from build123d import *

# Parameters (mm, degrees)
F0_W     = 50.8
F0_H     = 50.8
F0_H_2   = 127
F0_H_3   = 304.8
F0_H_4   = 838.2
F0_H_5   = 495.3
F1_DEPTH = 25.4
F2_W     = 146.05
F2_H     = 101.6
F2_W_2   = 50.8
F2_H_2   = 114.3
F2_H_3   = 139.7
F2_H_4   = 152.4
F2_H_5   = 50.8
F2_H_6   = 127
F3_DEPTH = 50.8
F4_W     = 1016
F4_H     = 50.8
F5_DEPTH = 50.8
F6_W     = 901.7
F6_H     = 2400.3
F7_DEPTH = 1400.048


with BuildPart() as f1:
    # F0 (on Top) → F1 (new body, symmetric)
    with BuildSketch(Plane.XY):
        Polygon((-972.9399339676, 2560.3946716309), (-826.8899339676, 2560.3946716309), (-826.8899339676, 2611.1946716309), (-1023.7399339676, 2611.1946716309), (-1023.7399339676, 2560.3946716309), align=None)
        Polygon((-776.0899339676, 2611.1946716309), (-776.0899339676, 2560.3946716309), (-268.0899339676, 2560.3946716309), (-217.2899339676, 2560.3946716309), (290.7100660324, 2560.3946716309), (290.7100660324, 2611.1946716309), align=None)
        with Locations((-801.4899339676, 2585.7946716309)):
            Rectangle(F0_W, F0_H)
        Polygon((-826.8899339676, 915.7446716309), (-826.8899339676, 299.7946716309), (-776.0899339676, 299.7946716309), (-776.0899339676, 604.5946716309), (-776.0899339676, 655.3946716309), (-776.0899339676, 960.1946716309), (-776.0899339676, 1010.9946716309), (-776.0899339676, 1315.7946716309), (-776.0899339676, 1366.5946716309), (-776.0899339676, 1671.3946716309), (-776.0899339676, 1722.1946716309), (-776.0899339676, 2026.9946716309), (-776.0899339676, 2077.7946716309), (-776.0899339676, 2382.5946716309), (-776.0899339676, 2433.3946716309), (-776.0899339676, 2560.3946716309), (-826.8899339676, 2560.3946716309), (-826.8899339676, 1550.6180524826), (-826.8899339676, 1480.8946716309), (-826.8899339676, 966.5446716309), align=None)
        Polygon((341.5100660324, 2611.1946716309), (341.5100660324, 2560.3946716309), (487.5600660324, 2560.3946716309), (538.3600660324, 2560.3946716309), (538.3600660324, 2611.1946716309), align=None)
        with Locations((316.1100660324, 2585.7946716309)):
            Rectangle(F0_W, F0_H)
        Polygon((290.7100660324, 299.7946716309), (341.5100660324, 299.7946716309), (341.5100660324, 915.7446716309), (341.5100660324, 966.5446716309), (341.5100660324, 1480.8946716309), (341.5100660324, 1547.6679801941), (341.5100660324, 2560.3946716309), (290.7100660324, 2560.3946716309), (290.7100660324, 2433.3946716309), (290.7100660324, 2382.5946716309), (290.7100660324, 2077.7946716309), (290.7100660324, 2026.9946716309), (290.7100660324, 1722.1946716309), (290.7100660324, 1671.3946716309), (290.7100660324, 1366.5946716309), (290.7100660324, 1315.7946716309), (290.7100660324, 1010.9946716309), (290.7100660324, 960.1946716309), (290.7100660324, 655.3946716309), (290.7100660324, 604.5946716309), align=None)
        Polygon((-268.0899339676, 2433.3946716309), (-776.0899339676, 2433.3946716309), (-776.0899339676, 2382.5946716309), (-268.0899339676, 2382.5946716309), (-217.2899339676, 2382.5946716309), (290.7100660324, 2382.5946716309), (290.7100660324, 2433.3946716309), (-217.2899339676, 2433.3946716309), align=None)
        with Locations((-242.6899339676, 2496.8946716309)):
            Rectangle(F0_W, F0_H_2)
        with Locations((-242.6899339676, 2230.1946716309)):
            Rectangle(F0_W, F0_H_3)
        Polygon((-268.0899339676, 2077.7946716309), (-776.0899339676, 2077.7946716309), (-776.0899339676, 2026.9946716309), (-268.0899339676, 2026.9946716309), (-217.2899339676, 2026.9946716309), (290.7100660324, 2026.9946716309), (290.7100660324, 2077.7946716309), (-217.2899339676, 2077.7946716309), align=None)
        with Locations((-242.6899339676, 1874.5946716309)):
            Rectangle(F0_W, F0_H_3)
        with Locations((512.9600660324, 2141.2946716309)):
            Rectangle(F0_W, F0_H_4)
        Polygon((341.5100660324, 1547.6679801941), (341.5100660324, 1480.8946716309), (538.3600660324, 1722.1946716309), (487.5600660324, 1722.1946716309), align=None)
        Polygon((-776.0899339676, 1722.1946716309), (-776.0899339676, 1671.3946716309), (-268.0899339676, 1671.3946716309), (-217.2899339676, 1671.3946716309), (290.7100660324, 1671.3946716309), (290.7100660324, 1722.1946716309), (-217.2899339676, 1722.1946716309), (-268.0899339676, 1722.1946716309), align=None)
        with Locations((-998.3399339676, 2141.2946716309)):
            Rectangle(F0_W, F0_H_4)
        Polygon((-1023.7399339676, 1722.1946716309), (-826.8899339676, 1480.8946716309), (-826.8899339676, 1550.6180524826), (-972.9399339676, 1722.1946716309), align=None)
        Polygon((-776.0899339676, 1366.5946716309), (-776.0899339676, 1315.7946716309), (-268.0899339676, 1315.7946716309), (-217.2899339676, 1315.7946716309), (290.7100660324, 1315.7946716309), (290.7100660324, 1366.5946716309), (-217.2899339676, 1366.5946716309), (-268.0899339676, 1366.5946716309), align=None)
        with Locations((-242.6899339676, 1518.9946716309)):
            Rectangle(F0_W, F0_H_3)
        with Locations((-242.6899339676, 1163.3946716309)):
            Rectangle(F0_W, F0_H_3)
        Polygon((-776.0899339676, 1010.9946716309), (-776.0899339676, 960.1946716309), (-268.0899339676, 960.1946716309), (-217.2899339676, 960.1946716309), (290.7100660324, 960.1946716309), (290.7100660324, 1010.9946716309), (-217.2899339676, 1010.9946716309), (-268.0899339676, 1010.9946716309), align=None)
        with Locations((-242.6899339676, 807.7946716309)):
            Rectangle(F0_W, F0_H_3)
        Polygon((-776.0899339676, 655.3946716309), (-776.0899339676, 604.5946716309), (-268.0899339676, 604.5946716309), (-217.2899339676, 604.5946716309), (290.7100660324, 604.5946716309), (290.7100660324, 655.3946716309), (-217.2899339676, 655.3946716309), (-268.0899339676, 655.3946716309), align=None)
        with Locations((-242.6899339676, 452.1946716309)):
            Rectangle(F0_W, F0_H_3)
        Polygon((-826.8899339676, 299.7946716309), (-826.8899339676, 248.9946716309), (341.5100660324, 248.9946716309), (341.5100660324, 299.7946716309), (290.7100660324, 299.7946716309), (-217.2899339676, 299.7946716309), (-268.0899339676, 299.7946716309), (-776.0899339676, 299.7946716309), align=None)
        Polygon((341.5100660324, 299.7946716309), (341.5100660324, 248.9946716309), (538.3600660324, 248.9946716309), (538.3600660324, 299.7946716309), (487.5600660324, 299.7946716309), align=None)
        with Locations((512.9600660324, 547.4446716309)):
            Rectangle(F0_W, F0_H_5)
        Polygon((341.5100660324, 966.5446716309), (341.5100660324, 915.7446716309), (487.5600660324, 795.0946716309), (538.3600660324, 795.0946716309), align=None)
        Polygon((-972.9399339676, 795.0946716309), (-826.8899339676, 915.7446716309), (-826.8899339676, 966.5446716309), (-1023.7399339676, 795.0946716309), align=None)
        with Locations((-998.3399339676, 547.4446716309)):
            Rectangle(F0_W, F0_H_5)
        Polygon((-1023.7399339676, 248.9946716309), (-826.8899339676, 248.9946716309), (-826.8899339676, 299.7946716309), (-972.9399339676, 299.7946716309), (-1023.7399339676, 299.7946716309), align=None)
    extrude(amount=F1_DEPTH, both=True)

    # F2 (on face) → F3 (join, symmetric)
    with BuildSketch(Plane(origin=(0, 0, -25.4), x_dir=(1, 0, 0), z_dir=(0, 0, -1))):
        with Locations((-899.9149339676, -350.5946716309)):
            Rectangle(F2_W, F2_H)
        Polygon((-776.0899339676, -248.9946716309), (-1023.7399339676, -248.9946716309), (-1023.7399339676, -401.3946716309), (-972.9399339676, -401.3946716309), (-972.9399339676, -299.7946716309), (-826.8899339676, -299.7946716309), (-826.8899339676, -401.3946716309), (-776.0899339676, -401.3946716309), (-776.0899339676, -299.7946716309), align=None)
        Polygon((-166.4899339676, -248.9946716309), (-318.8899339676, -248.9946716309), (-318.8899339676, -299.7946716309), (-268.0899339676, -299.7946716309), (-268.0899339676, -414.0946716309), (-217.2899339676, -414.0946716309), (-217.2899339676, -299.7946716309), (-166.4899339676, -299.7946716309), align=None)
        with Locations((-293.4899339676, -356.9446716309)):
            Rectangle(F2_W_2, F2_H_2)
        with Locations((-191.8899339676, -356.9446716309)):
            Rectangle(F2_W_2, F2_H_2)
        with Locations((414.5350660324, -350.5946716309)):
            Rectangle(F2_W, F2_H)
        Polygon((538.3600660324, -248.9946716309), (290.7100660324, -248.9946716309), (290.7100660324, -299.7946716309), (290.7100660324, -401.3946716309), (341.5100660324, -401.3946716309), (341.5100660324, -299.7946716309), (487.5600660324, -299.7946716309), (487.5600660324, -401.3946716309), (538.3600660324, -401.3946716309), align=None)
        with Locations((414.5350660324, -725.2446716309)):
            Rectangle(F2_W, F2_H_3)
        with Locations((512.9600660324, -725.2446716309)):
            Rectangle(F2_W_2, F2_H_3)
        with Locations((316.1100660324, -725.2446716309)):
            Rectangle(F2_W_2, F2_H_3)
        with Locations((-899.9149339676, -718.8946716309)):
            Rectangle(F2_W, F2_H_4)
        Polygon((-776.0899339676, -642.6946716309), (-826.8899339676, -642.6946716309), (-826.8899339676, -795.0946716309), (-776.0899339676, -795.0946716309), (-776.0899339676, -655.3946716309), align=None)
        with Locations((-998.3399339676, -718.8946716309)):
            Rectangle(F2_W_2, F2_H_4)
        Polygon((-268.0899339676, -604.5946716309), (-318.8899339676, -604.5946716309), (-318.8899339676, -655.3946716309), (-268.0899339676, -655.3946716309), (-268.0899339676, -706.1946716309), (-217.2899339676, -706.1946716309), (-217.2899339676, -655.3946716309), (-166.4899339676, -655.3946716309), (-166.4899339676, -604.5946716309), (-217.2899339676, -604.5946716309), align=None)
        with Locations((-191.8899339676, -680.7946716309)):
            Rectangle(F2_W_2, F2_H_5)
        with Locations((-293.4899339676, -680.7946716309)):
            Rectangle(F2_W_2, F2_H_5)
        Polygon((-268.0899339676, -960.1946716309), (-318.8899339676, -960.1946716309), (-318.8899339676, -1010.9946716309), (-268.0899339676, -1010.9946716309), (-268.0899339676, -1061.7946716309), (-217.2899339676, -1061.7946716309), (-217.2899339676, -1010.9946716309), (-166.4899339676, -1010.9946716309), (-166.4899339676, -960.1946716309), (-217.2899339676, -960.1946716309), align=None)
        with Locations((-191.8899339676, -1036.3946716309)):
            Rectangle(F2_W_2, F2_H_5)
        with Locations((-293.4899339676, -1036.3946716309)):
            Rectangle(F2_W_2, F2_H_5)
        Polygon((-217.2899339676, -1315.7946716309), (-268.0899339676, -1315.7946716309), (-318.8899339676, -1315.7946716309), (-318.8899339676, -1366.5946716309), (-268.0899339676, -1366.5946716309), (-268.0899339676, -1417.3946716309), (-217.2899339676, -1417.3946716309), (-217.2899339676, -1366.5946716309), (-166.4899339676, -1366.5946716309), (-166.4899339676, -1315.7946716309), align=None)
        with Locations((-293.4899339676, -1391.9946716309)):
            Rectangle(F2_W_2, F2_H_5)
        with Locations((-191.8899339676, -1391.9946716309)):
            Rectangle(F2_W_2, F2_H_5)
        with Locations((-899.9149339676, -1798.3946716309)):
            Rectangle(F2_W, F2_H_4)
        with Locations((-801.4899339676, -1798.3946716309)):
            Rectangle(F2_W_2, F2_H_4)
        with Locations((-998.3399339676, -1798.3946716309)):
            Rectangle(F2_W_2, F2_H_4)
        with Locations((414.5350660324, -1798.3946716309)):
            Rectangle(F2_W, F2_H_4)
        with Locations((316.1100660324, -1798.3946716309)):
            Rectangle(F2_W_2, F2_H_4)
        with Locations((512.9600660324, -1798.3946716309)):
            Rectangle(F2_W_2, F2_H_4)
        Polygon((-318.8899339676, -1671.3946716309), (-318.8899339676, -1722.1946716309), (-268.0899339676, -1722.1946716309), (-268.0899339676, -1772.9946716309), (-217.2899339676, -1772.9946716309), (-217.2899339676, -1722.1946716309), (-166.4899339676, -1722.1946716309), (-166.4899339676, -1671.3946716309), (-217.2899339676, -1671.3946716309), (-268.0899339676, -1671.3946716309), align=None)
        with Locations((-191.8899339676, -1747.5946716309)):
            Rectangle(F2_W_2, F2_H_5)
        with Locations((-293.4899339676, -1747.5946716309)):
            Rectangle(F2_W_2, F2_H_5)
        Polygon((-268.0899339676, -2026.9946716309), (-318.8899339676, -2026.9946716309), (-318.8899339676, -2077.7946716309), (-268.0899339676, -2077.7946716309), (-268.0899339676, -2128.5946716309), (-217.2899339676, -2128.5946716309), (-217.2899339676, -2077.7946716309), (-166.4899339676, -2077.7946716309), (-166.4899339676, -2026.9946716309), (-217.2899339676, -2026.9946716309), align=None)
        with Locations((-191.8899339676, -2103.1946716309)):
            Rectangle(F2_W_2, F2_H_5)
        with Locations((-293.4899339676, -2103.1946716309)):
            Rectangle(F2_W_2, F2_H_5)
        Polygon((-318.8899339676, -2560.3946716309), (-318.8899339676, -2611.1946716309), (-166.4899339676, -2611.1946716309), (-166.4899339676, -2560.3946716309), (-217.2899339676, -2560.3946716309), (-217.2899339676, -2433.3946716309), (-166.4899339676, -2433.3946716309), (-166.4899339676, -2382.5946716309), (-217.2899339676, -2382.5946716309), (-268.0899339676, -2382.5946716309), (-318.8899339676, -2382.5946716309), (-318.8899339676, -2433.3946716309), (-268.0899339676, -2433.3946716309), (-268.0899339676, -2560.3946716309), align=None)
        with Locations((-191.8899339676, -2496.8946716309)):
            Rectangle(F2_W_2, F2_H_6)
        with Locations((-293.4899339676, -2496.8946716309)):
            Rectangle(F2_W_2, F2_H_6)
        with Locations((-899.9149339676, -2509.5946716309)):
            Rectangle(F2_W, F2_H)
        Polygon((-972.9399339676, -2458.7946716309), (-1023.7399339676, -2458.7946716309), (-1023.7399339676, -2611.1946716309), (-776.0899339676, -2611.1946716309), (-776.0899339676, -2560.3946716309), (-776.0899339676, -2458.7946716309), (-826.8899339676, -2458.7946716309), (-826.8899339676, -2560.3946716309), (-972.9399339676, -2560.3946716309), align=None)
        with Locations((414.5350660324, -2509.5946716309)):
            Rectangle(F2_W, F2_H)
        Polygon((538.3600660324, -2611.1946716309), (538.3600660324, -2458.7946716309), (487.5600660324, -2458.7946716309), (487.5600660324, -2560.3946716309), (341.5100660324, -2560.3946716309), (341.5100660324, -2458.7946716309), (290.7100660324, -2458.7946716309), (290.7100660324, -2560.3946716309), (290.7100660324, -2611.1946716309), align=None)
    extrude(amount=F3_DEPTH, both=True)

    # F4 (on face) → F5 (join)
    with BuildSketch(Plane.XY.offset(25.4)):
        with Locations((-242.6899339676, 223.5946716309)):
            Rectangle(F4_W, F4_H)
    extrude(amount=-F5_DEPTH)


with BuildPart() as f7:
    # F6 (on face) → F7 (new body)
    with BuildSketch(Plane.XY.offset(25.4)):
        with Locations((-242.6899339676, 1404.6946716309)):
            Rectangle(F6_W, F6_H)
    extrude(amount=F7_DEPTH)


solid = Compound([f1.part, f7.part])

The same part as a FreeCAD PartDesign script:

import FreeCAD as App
import Part
import Sketcher
from FreeCAD import Vector
Q = App.Units.Quantity

doc = App.newDocument("Part")
body = doc.addObject("PartDesign::Body", "Body")

# Sketch on XY plane
sketch1 = body.newObject("Sketcher::SketchObject", "Sketch")
sketch1.AttachmentSupport = (doc.getObject("XY_Plane"), [""])
sketch1.MapMode = "FlatFace"
sketch1.addGeometry([
    Part.LineSegment(Vector(-1024, 2611, 0), Vector(-1024, 1722, 0)),  # 0
    Part.LineSegment(Vector(-1024, 1722, 0), Vector(-827, 1481, 0)),  # 1
    Part.LineSegment(Vector(-827, 1481, 0), Vector(-827, 967, 0)),  # 2
    Part.LineSegment(Vector(-827, 967, 0), Vector(-1024, 795, 0)),  # 3
    Part.LineSegment(Vector(-1024, 795, 0), Vector(-1024, 249, 0)),  # 4
    Part.LineSegment(Vector(-1024, 249, 0), Vector(538, 249, 0)),  # 5
    Part.LineSegment(Vector(538, 249, 0), Vector(538, 795, 0)),  # 6
    Part.LineSegment(Vector(538, 795, 0), Vector(342, 967, 0)),  # 7
    Part.LineSegment(Vector(342, 967, 0), Vector(342, 1481, 0)),  # 8
    Part.LineSegment(Vector(342, 1481, 0), Vector(538, 1722, 0)),  # 9
    Part.LineSegment(Vector(538, 1722, 0), Vector(538, 2611, 0)),  # 10
    Part.LineSegment(Vector(538, 2611, 0), Vector(-1024, 2611, 0)),  # 11
    Part.LineSegment(Vector(-973, 300, 0), Vector(-973, 795, 0)),  # 12
    Part.LineSegment(Vector(-973, 795, 0), Vector(-827, 916, 0)),  # 13
    Part.LineSegment(Vector(-827, 916, 0), Vector(-827, 300, 0)),  # 14
    Part.LineSegment(Vector(-827, 300, 0), Vector(-973, 300, 0)),  # 15
    Part.LineSegment(Vector(488, 795, 0), Vector(488, 300, 0)),  # 16
    Part.LineSegment(Vector(488, 300, 0), Vector(342, 300, 0)),  # 17
    Part.LineSegment(Vector(342, 300, 0), Vector(342, 916, 0)),  # 18
    Part.LineSegment(Vector(342, 916, 0), Vector(488, 795, 0)),  # 19
    Part.LineSegment(Vector(-776, 300, 0), Vector(-776, 605, 0)),  # 20
    Part.LineSegment(Vector(-776, 605, 0), Vector(-268, 605, 0)),  # 21
    Part.LineSegment(Vector(-268, 605, 0), Vector(-268, 300, 0)),  # 22
    Part.LineSegment(Vector(-268, 300, 0), Vector(-776, 300, 0)),  # 23
    Part.LineSegment(Vector(-217, 300, 0), Vector(-217, 605, 0)),  # 24
    Part.LineSegment(Vector(-217, 605, 0), Vector(291, 605, 0)),  # 25
    Part.LineSegment(Vector(291, 605, 0), Vector(291, 300, 0)),  # 26
    Part.LineSegment(Vector(291, 300, 0), Vector(-217, 300, 0)),  # 27
    Part.LineSegment(Vector(-776, 655, 0), Vector(-776, 960, 0)),  # 28
    Part.LineSegment(Vector(-776, 960, 0), Vector(-268, 960, 0)),  # 29
    Part.LineSegment(Vector(-268, 960, 0), Vector(-268, 655, 0)),  # 30
    Part.LineSegment(Vector(-268, 655, 0), Vector(-776, 655, 0)),  # 31
    Part.LineSegment(Vector(-217, 655, 0), Vector(-217, 960, 0)),  # 32
    Part.LineSegment(Vector(-217, 960, 0), Vector(291, 960, 0)),  # 33
    Part.LineSegment(Vector(291, 960, 0), Vector(291, 655, 0)),  # 34
    Part.LineSegment(Vector(291, 655, 0), Vector(-217, 655, 0)),  # 35
    Part.LineSegment(Vector(-776, 1011, 0), Vector(-776, 1316, 0)),  # 36
    Part.LineSegment(Vector(-776, 1316, 0), Vector(-268, 1316, 0)),  # 37
    Part.LineSegment(Vector(-268, 1316, 0), Vector(-268, 1011, 0)),  # 38
    Part.LineSegment(Vector(-268, 1011, 0), Vector(-776, 1011, 0)),  # 39
    Part.LineSegment(Vector(-217, 1011, 0), Vector(-217, 1316, 0)),  # 40
    Part.LineSegment(Vector(-217, 1316, 0), Vector(291, 1316, 0)),  # 41
    Part.LineSegment(Vector(291, 1316, 0), Vector(291, 1011, 0)),  # 42
    Part.LineSegment(Vector(291, 1011, 0), Vector(-217, 1011, 0)),  # 43
    Part.LineSegment(Vector(-776, 1367, 0), Vector(-776, 1671, 0)),  # 44
    Part.LineSegment(Vector(-776, 1671, 0), Vector(-268, 1671, 0)),  # 45
    Part.LineSegment(Vector(-268, 1671, 0), Vector(-268, 1367, 0)),  # 46
    Part.LineSegment(Vector(-268, 1367, 0), Vector(-776, 1367, 0)),  # 47
    Part.LineSegment(Vector(-217, 1671, 0), Vector(291, 1671, 0)),  # 48
    Part.LineSegment(Vector(291, 1671, 0), Vector(291, 1367, 0)),  # 49
    Part.LineSegment(Vector(291, 1367, 0), Vector(-217, 1367, 0)),  # 50
    Part.LineSegment(Vector(-217, 1367, 0), Vector(-217, 1671, 0)),  # 51
    Part.LineSegment(Vector(-973, 1722, 0), Vector(-973, 2560, 0)),  # 52
    Part.LineSegment(Vector(-973, 2560, 0), Vector(-827, 2560, 0)),  # 53
    Part.LineSegment(Vector(-827, 2560, 0), Vector(-827, 1551, 0)),  # 54
    Part.LineSegment(Vector(-827, 1551, 0), Vector(-973, 1722, 0)),  # 55
    Part.LineSegment(Vector(-776, 1722, 0), Vector(-776, 2027, 0)),  # 56
    Part.LineSegment(Vector(-776, 2027, 0), Vector(-268, 2027, 0)),  # 57
    Part.LineSegment(Vector(-268, 2027, 0), Vector(-268, 1722, 0)),  # 58
    Part.LineSegment(Vector(-268, 1722, 0), Vector(-776, 1722, 0)),  # 59
    Part.LineSegment(Vector(-217, 1722, 0), Vector(-217, 2027, 0)),  # 60
    Part.LineSegment(Vector(-217, 2027, 0), Vector(291, 2027, 0)),  # 61
    Part.LineSegment(Vector(291, 2027, 0), Vector(291, 1722, 0)),  # 62
    Part.LineSegment(Vector(291, 1722, 0), Vector(-217, 1722, 0)),  # 63
    Part.LineSegment(Vector(342, 1548, 0), Vector(342, 2560, 0)),  # 64
    Part.LineSegment(Vector(342, 2560, 0), Vector(488, 2560, 0)),  # 65
    Part.LineSegment(Vector(488, 2560, 0), Vector(488, 1722, 0)),  # 66
    Part.LineSegment(Vector(488, 1722, 0), Vector(342, 1548, 0)),  # 67
    Part.LineSegment(Vector(-776, 2078, 0), Vector(-776, 2383, 0)),  # 68
    Part.LineSegment(Vector(-776, 2383, 0), Vector(-268, 2383, 0)),  # 69
    Part.LineSegment(Vector(-268, 2383, 0), Vector(-268, 2078, 0)),  # 70
    Part.LineSegment(Vector(-268, 2078, 0), Vector(-776, 2078, 0)),  # 71
    Part.LineSegment(Vector(-217, 2078, 0), Vector(-217, 2383, 0)),  # 72
    Part.LineSegment(Vector(-217, 2383, 0), Vector(291, 2383, 0)),  # 73
    Part.LineSegment(Vector(291, 2383, 0), Vector(291, 2078, 0)),  # 74
    Part.LineSegment(Vector(291, 2078, 0), Vector(-217, 2078, 0)),  # 75
    Part.LineSegment(Vector(-776, 2433, 0), Vector(-776, 2560, 0)),  # 76
    Part.LineSegment(Vector(-776, 2560, 0), Vector(-268, 2560, 0)),  # 77
    Part.LineSegment(Vector(-268, 2560, 0), Vector(-268, 2433, 0)),  # 78
    Part.LineSegment(Vector(-268, 2433, 0), Vector(-776, 2433, 0)),  # 79
    Part.LineSegment(Vector(-217, 2560, 0), Vector(291, 2560, 0)),  # 80
    Part.LineSegment(Vector(291, 2560, 0), Vector(291, 2433, 0)),  # 81
    Part.LineSegment(Vector(291, 2433, 0), Vector(-217, 2433, 0)),  # 82
    Part.LineSegment(Vector(-217, 2433, 0), Vector(-217, 2560, 0)),  # 83
], False)
sketch1.addConstraint([
    Sketcher.Constraint("Coincident", 0, 2, 1, 1),
    Sketcher.Constraint("Coincident", 1, 2, 2, 1),
    Sketcher.Constraint("Coincident", 2, 2, 3, 1),
    Sketcher.Constraint("Coincident", 3, 2, 4, 1),
    Sketcher.Constraint("Coincident", 4, 2, 5, 1),
    Sketcher.Constraint("Coincident", 5, 2, 6, 1),
    Sketcher.Constraint("Coincident", 6, 2, 7, 1),
    Sketcher.Constraint("Coincident", 7, 2, 8, 1),
    Sketcher.Constraint("Coincident", 8, 2, 9, 1),
    Sketcher.Constraint("Coincident", 9, 2, 10, 1),
    Sketcher.Constraint("Coincident", 10, 2, 11, 1),
    Sketcher.Constraint("Coincident", 11, 2, 0, 1),
    Sketcher.Constraint("Coincident", 12, 2, 13, 1),
    Sketcher.Constraint("Coincident", 13, 2, 14, 1),
    Sketcher.Constraint("Coincident", 14, 2, 15, 1),
    Sketcher.Constraint("Coincident", 15, 2, 12, 1),
    Sketcher.Constraint("Coincident", 16, 2, 17, 1),
    Sketcher.Constraint("Coincident", 17, 2, 18, 1),
    Sketcher.Constraint("Coincident", 18, 2, 19, 1),
    Sketcher.Constraint("Coincident", 19, 2, 16, 1),
    Sketcher.Constraint("Coincident", 20, 2, 21, 1),
    Sketcher.Constraint("Coincident", 21, 2, 22, 1),
    Sketcher.Constraint("Coincident", 22, 2, 23, 1),
    Sketcher.Constraint("Coincident", 23, 2, 20, 1),
    Sketcher.Constraint("Coincident", 24, 2, 25, 1),
    Sketcher.Constraint("Coincident", 25, 2, 26, 1),
    Sketcher.Constraint("Coincident", 26, 2, 27, 1),
    Sketcher.Constraint("Coincident", 27, 2, 24, 1),
    Sketcher.Constraint("Coincident", 28, 2, 29, 1),
    Sketcher.Constraint("Coincident", 29, 2, 30, 1),
    Sketcher.Constraint("Coincident", 30, 2, 31, 1),
    Sketcher.Constraint("Coincident", 31, 2, 28, 1),
    Sketcher.Constraint("Coincident", 32, 2, 33, 1),
    Sketcher.Constraint("Coincident", 33, 2, 34, 1),
    Sketcher.Constraint("Coincident", 34, 2, 35, 1),
    Sketcher.Constraint("Coincident", 35, 2, 32, 1),
    Sketcher.Constraint("Coincident", 36, 2, 37, 1),
    Sketcher.Constraint("Coincident", 37, 2, 38, 1),
    Sketcher.Constraint("Coincident", 38, 2, 39, 1),
    Sketcher.Constraint("Coincident", 39, 2, 36, 1),
    Sketcher.Constraint("Coincident", 40, 2, 41, 1),
    Sketcher.Constraint("Coincident", 41, 2, 42, 1),
    Sketcher.Constraint("Coincident", 42, 2, 43, 1),
    Sketcher.Constraint("Coincident", 43, 2, 40, 1),
    Sketcher.Constraint("Coincident", 44, 2, 45, 1),
    Sketcher.Constraint("Coincident", 45, 2, 46, 1),
    Sketcher.Constraint("Coincident", 46, 2, 47, 1),
    Sketcher.Constraint("Coincident", 47, 2, 44, 1),
    Sketcher.Constraint("Coincident", 48, 2, 49, 1),
    Sketcher.Constraint("Coincident", 49, 2, 50, 1),
    Sketcher.Constraint("Coincident", 50, 2, 51, 1),
    Sketcher.Constraint("Coincident", 51, 2, 48, 1),
    Sketcher.Constraint("Coincident", 52, 2, 53, 1),
    Sketcher.Constraint("Coincident", 53, 2, 54, 1),
    Sketcher.Constraint("Coincident", 54, 2, 55, 1),
    Sketcher.Constraint("Coincident", 55, 2, 52, 1),
    Sketcher.Constraint("Coincident", 56, 2, 57, 1),
    Sketcher.Constraint("Coincident", 57, 2, 58, 1),
    Sketcher.Constraint("Coincident", 58, 2, 59, 1),
    Sketcher.Constraint("Coincident", 59, 2, 56, 1),
    Sketcher.Constraint("Coincident", 60, 2, 61, 1),
    Sketcher.Constraint("Coincident", 61, 2, 62, 1),
    Sketcher.Constraint("Coincident", 62, 2, 63, 1),
    Sketcher.Constraint("Coincident", 63, 2, 60, 1),
    Sketcher.Constraint("Coincident", 64, 2, 65, 1),
    Sketcher.Constraint("Coincident", 65, 2, 66, 1),
    Sketcher.Constraint("Coincident", 66, 2, 67, 1),
    Sketcher.Constraint("Coincident", 67, 2, 64, 1),
    Sketcher.Constraint("Coincident", 68, 2, 69, 1),
    Sketcher.Constraint("Coincident", 69, 2, 70, 1),
    Sketcher.Constraint("Coincident", 70, 2, 71, 1),
    Sketcher.Constraint("Coincident", 71, 2, 68, 1),
    Sketcher.Constraint("Coincident", 72, 2, 73, 1),
    Sketcher.Constraint("Coincident", 73, 2, 74, 1),
    Sketcher.Constraint("Coincident", 74, 2, 75, 1),
    Sketcher.Constraint("Coincident", 75, 2, 72, 1),
    Sketcher.Constraint("Coincident", 76, 2, 77, 1),
    Sketcher.Constraint("Coincident", 77, 2, 78, 1),
    Sketcher.Constraint("Coincident", 78, 2, 79, 1),
    Sketcher.Constraint("Coincident", 79, 2, 76, 1),
    Sketcher.Constraint("Coincident", 80, 2, 81, 1),
    Sketcher.Constraint("Coincident", 81, 2, 82, 1),
    Sketcher.Constraint("Coincident", 82, 2, 83, 1),
    Sketcher.Constraint("Coincident", 83, 2, 80, 1),
    Sketcher.Constraint("Vertical", 0),
    Sketcher.Constraint("Vertical", 2),
    Sketcher.Constraint("Vertical", 4),
    Sketcher.Constraint("Horizontal", 5),
    Sketcher.Constraint("Vertical", 6),
    Sketcher.Constraint("Vertical", 8),
    Sketcher.Constraint("Vertical", 10),
    Sketcher.Constraint("Horizontal", 11),
    Sketcher.Constraint("Vertical", 12),
    Sketcher.Constraint("Vertical", 14),
    Sketcher.Constraint("Horizontal", 15),
    Sketcher.Constraint("Vertical", 16),
    Sketcher.Constraint("Horizontal", 17),
    Sketcher.Constraint("Vertical", 18),
    Sketcher.Constraint("Vertical", 20),
    Sketcher.Constraint("Horizontal", 21),
    Sketcher.Constraint("Vertical", 22),
    Sketcher.Constraint("Horizontal", 23),
    Sketcher.Constraint("Vertical", 24),
    Sketcher.Constraint("Horizontal", 25),
    Sketcher.Constraint("Vertical", 26),
    Sketcher.Constraint("Horizontal", 27),
    Sketcher.Constraint("Vertical", 28),
    Sketcher.Constraint("Horizontal", 29),
    Sketcher.Constraint("Vertical", 30),
    Sketcher.Constraint("Horizontal", 31),
    Sketcher.Constraint("Vertical", 32),
    Sketcher.Constraint("Horizontal", 33),
    Sketcher.Constraint("Vertical", 34),
    Sketcher.Constraint("Horizontal", 35),
    Sketcher.Constraint("Vertical", 36),
    Sketcher.Constraint("Horizontal", 37),
    Sketcher.Constraint("Vertical", 38),
    Sketcher.Constraint("Horizontal", 39),
    Sketcher.Constraint("Vertical", 40),
    Sketcher.Constraint("Horizontal", 41),
    Sketcher.Constraint("Vertical", 42),
    Sketcher.Constraint("Horizontal", 43),
    Sketcher.Constraint("Vertical", 44),
    Sketcher.Constraint("Horizontal", 45),
    Sketcher.Constraint("Vertical", 46),
    Sketcher.Constraint("Horizontal", 47),
    Sketcher.Constraint("Horizontal", 48),
    Sketcher.Constraint("Vertical", 49),
    Sketcher.Constraint("Horizontal", 50),
    Sketcher.Constraint("Vertical", 51),
    Sketcher.Constraint("Vertical", 52),
    Sketcher.Constraint("Horizontal", 53),
    Sketcher.Constraint("Vertical", 54),
    Sketcher.Constraint("Vertical", 56),
    Sketcher.Constraint("Horizontal", 57),
    Sketcher.Constraint("Vertical", 58),
    Sketcher.Constraint("Horizontal", 59),
    Sketcher.Constraint("Vertical", 60),
    Sketcher.Constraint("Horizontal", 61),
    Sketcher.Constraint("Vertical", 62),
    Sketcher.Constraint("Horizontal", 63),
    Sketcher.Constraint("Vertical", 64),
    Sketcher.Constraint("Horizontal", 65),
    Sketcher.Constraint("Vertical", 66),
    Sketcher.Constraint("Vertical", 68),
    Sketcher.Constraint("Horizontal", 69),
    Sketcher.Constraint("Vertical", 70),
    Sketcher.Constraint("Horizontal", 71),
    Sketcher.Constraint("Vertical", 72),
    Sketcher.Constraint("Horizontal", 73),
    Sketcher.Constraint("Vertical", 74),
    Sketcher.Constraint("Horizontal", 75),
    Sketcher.Constraint("Vertical", 76),
    Sketcher.Constraint("Horizontal", 77),
    Sketcher.Constraint("Vertical", 78),
    Sketcher.Constraint("Horizontal", 79),
    Sketcher.Constraint("Horizontal", 80),
    Sketcher.Constraint("Vertical", 81),
    Sketcher.Constraint("Horizontal", 82),
    Sketcher.Constraint("Vertical", 83),
    Sketcher.Constraint("Horizontal", 3, 2, 6, 2),
    Sketcher.Constraint("Horizontal", 2, 2, 7, 2),
    Sketcher.Constraint("Horizontal", 1, 2, 8, 2),
    Sketcher.Constraint("Horizontal", 0, 2, 9, 2),
    Sketcher.Constraint("Horizontal", 6, 2, 12, 2),
    Sketcher.Constraint("Horizontal", 15, 2, 16, 2),
    Sketcher.Constraint("Horizontal", 13, 2, 18, 2),
    Sketcher.Constraint("Horizontal", 12, 2, 19, 2),
    Sketcher.Constraint("Horizontal", 17, 2, 22, 2),
    Sketcher.Constraint("Horizontal", 21, 2, 24, 2),
    Sketcher.Constraint("Horizontal", 23, 2, 26, 2),
    Sketcher.Constraint("Horizontal", 29, 2, 32, 2),
    Sketcher.Constraint("Horizontal", 31, 2, 34, 2),
    Sketcher.Constraint("Horizontal", 37, 2, 40, 2),
    Sketcher.Constraint("Horizontal", 39, 2, 42, 2),
    Sketcher.Constraint("Horizontal", 45, 2, 48, 2),
    Sketcher.Constraint("Horizontal", 47, 2, 49, 2),
    Sketcher.Constraint("Horizontal", 9, 2, 55, 2),
    Sketcher.Constraint("Horizontal", 55, 2, 58, 2),
    Sketcher.Constraint("Horizontal", 57, 2, 60, 2),
    Sketcher.Constraint("Horizontal", 59, 2, 62, 2),
    Sketcher.Constraint("Horizontal", 53, 2, 64, 2),
    Sketcher.Constraint("Horizontal", 63, 2, 66, 2),
    Sketcher.Constraint("Horizontal", 69, 2, 72, 2),
    Sketcher.Constraint("Horizontal", 71, 2, 74, 2),
    Sketcher.Constraint("Horizontal", 65, 2, 76, 2),
    Sketcher.Constraint("Horizontal", 77, 2, 80, 2),
    Sketcher.Constraint("Horizontal", 79, 2, 81, 2),
    Sketcher.Constraint("Vertical", 0, 2, 3, 2),
    Sketcher.Constraint("Vertical", 6, 2, 9, 2),
    Sketcher.Constraint("Vertical", 2, 2, 13, 2),
    Sketcher.Constraint("Vertical", 8, 2, 17, 2),
    Sketcher.Constraint("Vertical", 23, 2, 28, 2),
    Sketcher.Constraint("Vertical", 22, 2, 29, 2),
    Sketcher.Constraint("Vertical", 27, 2, 32, 2),
    Sketcher.Constraint("Vertical", 26, 2, 33, 2),
    Sketcher.Constraint("Vertical", 31, 2, 36, 2),
    Sketcher.Constraint("Vertical", 30, 2, 37, 2),
    Sketcher.Constraint("Vertical", 35, 2, 40, 2),
    Sketcher.Constraint("Vertical", 34, 2, 41, 2),
    Sketcher.Constraint("Vertical", 39, 2, 44, 2),
    Sketcher.Constraint("Vertical", 38, 2, 45, 2),
    Sketcher.Constraint("Vertical", 42, 2, 48, 2),
    Sketcher.Constraint("Vertical", 43, 2, 50, 2),
    Sketcher.Constraint("Vertical", 15, 2, 52, 2),
    Sketcher.Constraint("Vertical", 14, 2, 53, 2),
    Sketcher.Constraint("Vertical", 47, 2, 56, 2),
    Sketcher.Constraint("Vertical", 46, 2, 57, 2),
    Sketcher.Constraint("Vertical", 51, 2, 60, 2),
    Sketcher.Constraint("Vertical", 49, 2, 61, 2),
    Sketcher.Constraint("Vertical", 18, 2, 64, 2),
    Sketcher.Constraint("Vertical", 19, 2, 65, 2),
    Sketcher.Constraint("Vertical", 59, 2, 68, 2),
    Sketcher.Constraint("Vertical", 58, 2, 69, 2),
    Sketcher.Constraint("Vertical", 63, 2, 72, 2),
    Sketcher.Constraint("Vertical", 62, 2, 73, 2),
    Sketcher.Constraint("Vertical", 71, 2, 76, 2),
    Sketcher.Constraint("Vertical", 70, 2, 77, 2),
    Sketcher.Constraint("Vertical", 74, 2, 80, 2),
    Sketcher.Constraint("Vertical", 75, 2, 82, 2),
    Sketcher.Constraint("Equal", 15, 17),
    Sketcher.Constraint("Equal", 23, 25),
    Sketcher.Constraint("Equal", 26, 28),
    Sketcher.Constraint("Equal", 34, 36),
    Sketcher.Constraint("Equal", 42, 44),
    Sketcher.Constraint("Equal", 51, 56),
    Sketcher.Constraint("Equal", 62, 68),
    Sketcher.Constraint("Equal", 3, 7),
    Sketcher.Constraint("DistanceX", 21, 1, 21, 2, Q("20 in")),
    Sketcher.Constraint("DistanceY", 0, 2, 0, 1, Q("35 in")),
    Sketcher.Constraint("DistanceY", 20, 1, 20, 2, Q("12 in")),
    Sketcher.Constraint("DistanceY", 52, 1, 52, 2, Q("33 in")),
    Sketcher.Constraint("DistanceY", 76, 1, 76, 2, Q("5 in")),
    Sketcher.Constraint("DistanceX", 5, 1, 5, 2, Q("61.5 in")),
    Sketcher.Constraint("DistanceY", 4, 2, 4, 1, Q("21.5 in")),
    Sketcher.Constraint("DistanceY", 12, 1, 12, 2, Q("19.5 in")),
    Sketcher.Constraint("DistanceX", 15, 2, 15, 1, Q("5.75 in")),
    Sketcher.Constraint("DistanceY", 2, 2, 2, 1, Q("20.25 in")),
    Sketcher.Constraint("DistanceY", 14, 2, 14, 1, Q("24.25 in")),
    Sketcher.Constraint("Distance", 1, Q("12.2601998 in")),
    Sketcher.Constraint("DistanceY", 54, 2, 54, 1, Q("1009.776619 mm")),
    Sketcher.Constraint("DistanceY", 64, 1, 64, 2, Q("1012.726691 mm")),
    Sketcher.Constraint("Distance", 3, Q("261.046021 mm")),
    Sketcher.Constraint("DistanceY", -1, 1, 0, 2, Q("1722.194672 mm")),
    Sketcher.Constraint("DistanceY", -1, 1, 1, 2, Q("1480.894672 mm")),
    Sketcher.Constraint("DistanceY", -1, 1, 28, 2, Q("960.194672 mm")),
    Sketcher.Constraint("DistanceY", -1, 1, 36, 2, Q("1315.794672 mm")),
    Sketcher.Constraint("DistanceY", -1, 1, 44, 2, Q("1671.394672 mm")),
    Sketcher.Constraint("DistanceY", -1, 1, 68, 2, Q("2382.594672 mm")),
    Sketcher.Constraint("DistanceX", 0, 2, -1, 1, Q("1023.739934 mm")),
    Sketcher.Constraint("DistanceX", 20, 2, -1, 1, Q("776.089934 mm")),
    Sketcher.Constraint("DistanceX", 24, 2, -1, 1, Q("217.289934 mm")),
])
pad1 = body.newObject("PartDesign::Pad", "Pad")
pad1.Profile = sketch1
pad1.Length = Q("2 in")
pad1.Midplane = True

# Sketch on XY plane
sketch2 = body.newObject("Sketcher::SketchObject", "Sketch001")
sketch2.AttachmentSupport = (doc.getObject("XY_Plane"), [""])
sketch2.MapMode = "FlatFace"
sketch2.AttachmentOffset = App.Placement(Vector(0, 0, -1 * 25.4), App.Rotation())
sketch2.addGeometry([
    Part.LineSegment(Vector(-776, 401, 0), Vector(-776, 249, 0)),  # 0
    Part.LineSegment(Vector(-776, 249, 0), Vector(-1024, 249, 0)),  # 1
    Part.LineSegment(Vector(-1024, 249, 0), Vector(-1024, 401, 0)),  # 2
    Part.LineSegment(Vector(-1024, 401, 0), Vector(-776, 401, 0)),  # 3
    Part.LineSegment(Vector(-166, 249, 0), Vector(-319, 249, 0)),  # 4
    Part.LineSegment(Vector(-319, 249, 0), Vector(-319, 414, 0)),  # 5
    Part.LineSegment(Vector(-319, 414, 0), Vector(-166, 414, 0)),  # 6
    Part.LineSegment(Vector(-166, 414, 0), Vector(-166, 249, 0)),  # 7
    Part.LineSegment(Vector(538, 401, 0), Vector(538, 249, 0)),  # 8
    Part.LineSegment(Vector(538, 249, 0), Vector(291, 249, 0)),  # 9
    Part.LineSegment(Vector(291, 249, 0), Vector(291, 401, 0)),  # 10
    Part.LineSegment(Vector(291, 401, 0), Vector(538, 401, 0)),  # 11
    Part.LineSegment(Vector(538, 795, 0), Vector(538, 655, 0)),  # 12
    Part.LineSegment(Vector(538, 655, 0), Vector(291, 655, 0)),  # 13
    Part.LineSegment(Vector(291, 655, 0), Vector(291, 795, 0)),  # 14
    Part.LineSegment(Vector(291, 795, 0), Vector(538, 795, 0)),  # 15
    Part.LineSegment(Vector(-776, 795, 0), Vector(-776, 643, 0)),  # 16
    Part.LineSegment(Vector(-776, 643, 0), Vector(-1024, 643, 0)),  # 17
    Part.LineSegment(Vector(-1024, 643, 0), Vector(-1024, 795, 0)),  # 18
    Part.LineSegment(Vector(-1024, 795, 0), Vector(-776, 795, 0)),  # 19
    Part.LineSegment(Vector(-319, 605, 0), Vector(-319, 706, 0)),  # 20
    Part.LineSegment(Vector(-319, 706, 0), Vector(-166, 706, 0)),  # 21
    Part.LineSegment(Vector(-166, 706, 0), Vector(-166, 605, 0)),  # 22
    Part.LineSegment(Vector(-166, 605, 0), Vector(-319, 605, 0)),  # 23
    Part.LineSegment(Vector(-319, 960, 0), Vector(-319, 1062, 0)),  # 24
    Part.LineSegment(Vector(-319, 1062, 0), Vector(-166, 1062, 0)),  # 25
    Part.LineSegment(Vector(-166, 1062, 0), Vector(-166, 960, 0)),  # 26
    Part.LineSegment(Vector(-166, 960, 0), Vector(-319, 960, 0)),  # 27
    Part.LineSegment(Vector(-319, 1316, 0), Vector(-319, 1417, 0)),  # 28
    Part.LineSegment(Vector(-319, 1417, 0), Vector(-166, 1417, 0)),  # 29
    Part.LineSegment(Vector(-166, 1417, 0), Vector(-166, 1316, 0)),  # 30
    Part.LineSegment(Vector(-166, 1316, 0), Vector(-319, 1316, 0)),  # 31
    Part.LineSegment(Vector(-776, 1875, 0), Vector(-776, 1722, 0)),  # 32
    Part.LineSegment(Vector(-776, 1722, 0), Vector(-1024, 1722, 0)),  # 33
    Part.LineSegment(Vector(-1024, 1722, 0), Vector(-1024, 1875, 0)),  # 34
    Part.LineSegment(Vector(-1024, 1875, 0), Vector(-776, 1875, 0)),  # 35
    Part.LineSegment(Vector(291, 1722, 0), Vector(291, 1875, 0)),  # 36
    Part.LineSegment(Vector(291, 1875, 0), Vector(538, 1875, 0)),  # 37
    Part.LineSegment(Vector(538, 1875, 0), Vector(538, 1722, 0)),  # 38
    Part.LineSegment(Vector(538, 1722, 0), Vector(291, 1722, 0)),  # 39
    Part.LineSegment(Vector(-319, 1671, 0), Vector(-319, 1773, 0)),  # 40
    Part.LineSegment(Vector(-319, 1773, 0), Vector(-166, 1773, 0)),  # 41
    Part.LineSegment(Vector(-166, 1773, 0), Vector(-166, 1671, 0)),  # 42
    Part.LineSegment(Vector(-166, 1671, 0), Vector(-319, 1671, 0)),  # 43
    Part.LineSegment(Vector(-319, 2027, 0), Vector(-319, 2129, 0)),  # 44
    Part.LineSegment(Vector(-319, 2129, 0), Vector(-166, 2129, 0)),  # 45
    Part.LineSegment(Vector(-166, 2129, 0), Vector(-166, 2027, 0)),  # 46
    Part.LineSegment(Vector(-166, 2027, 0), Vector(-319, 2027, 0)),  # 47
    Part.LineSegment(Vector(-319, 2611, 0), Vector(-166, 2611, 0)),  # 48
    Part.LineSegment(Vector(-166, 2611, 0), Vector(-166, 2383, 0)),  # 49
    Part.LineSegment(Vector(-166, 2383, 0), Vector(-319, 2383, 0)),  # 50
    Part.LineSegment(Vector(-319, 2383, 0), Vector(-319, 2611, 0)),  # 51
    Part.LineSegment(Vector(-1024, 2459, 0), Vector(-1024, 2611, 0)),  # 52
    Part.LineSegment(Vector(-1024, 2611, 0), Vector(-776, 2611, 0)),  # 53
    Part.LineSegment(Vector(-776, 2611, 0), Vector(-776, 2459, 0)),  # 54
    Part.LineSegment(Vector(-776, 2459, 0), Vector(-1024, 2459, 0)),  # 55
    Part.LineSegment(Vector(291, 2459, 0), Vector(291, 2611, 0)),  # 56
    Part.LineSegment(Vector(291, 2611, 0), Vector(538, 2611, 0)),  # 57
    Part.LineSegment(Vector(538, 2611, 0), Vector(538, 2459, 0)),  # 58
    Part.LineSegment(Vector(538, 2459, 0), Vector(291, 2459, 0)),  # 59
], False)
sketch2.addConstraint([
    Sketcher.Constraint("Coincident", 0, 2, 1, 1),
    Sketcher.Constraint("Coincident", 1, 2, 2, 1),
    Sketcher.Constraint("Coincident", 2, 2, 3, 1),
    Sketcher.Constraint("Coincident", 3, 2, 0, 1),
    Sketcher.Constraint("Coincident", 4, 2, 5, 1),
    Sketcher.Constraint("Coincident", 5, 2, 6, 1),
    Sketcher.Constraint("Coincident", 6, 2, 7, 1),
    Sketcher.Constraint("Coincident", 7, 2, 4, 1),
    Sketcher.Constraint("Coincident", 8, 2, 9, 1),
    Sketcher.Constraint("Coincident", 9, 2, 10, 1),
    Sketcher.Constraint("Coincident", 10, 2, 11, 1),
    Sketcher.Constraint("Coincident", 11, 2, 8, 1),
    Sketcher.Constraint("Coincident", 12, 2, 13, 1),
    Sketcher.Constraint("Coincident", 13, 2, 14, 1),
    Sketcher.Constraint("Coincident", 14, 2, 15, 1),
    Sketcher.Constraint("Coincident", 15, 2, 12, 1),
    Sketcher.Constraint("Coincident", 16, 2, 17, 1),
    Sketcher.Constraint("Coincident", 17, 2, 18, 1),
    Sketcher.Constraint("Coincident", 18, 2, 19, 1),
    Sketcher.Constraint("Coincident", 19, 2, 16, 1),
    Sketcher.Constraint("Coincident", 20, 2, 21, 1),
    Sketcher.Constraint("Coincident", 21, 2, 22, 1),
    Sketcher.Constraint("Coincident", 22, 2, 23, 1),
    Sketcher.Constraint("Coincident", 23, 2, 20, 1),
    Sketcher.Constraint("Coincident", 24, 2, 25, 1),
    Sketcher.Constraint("Coincident", 25, 2, 26, 1),
    Sketcher.Constraint("Coincident", 26, 2, 27, 1),
    Sketcher.Constraint("Coincident", 27, 2, 24, 1),
    Sketcher.Constraint("Coincident", 28, 2, 29, 1),
    Sketcher.Constraint("Coincident", 29, 2, 30, 1),
    Sketcher.Constraint("Coincident", 30, 2, 31, 1),
    Sketcher.Constraint("Coincident", 31, 2, 28, 1),
    Sketcher.Constraint("Coincident", 32, 2, 33, 1),
    Sketcher.Constraint("Coincident", 33, 2, 34, 1),
    Sketcher.Constraint("Coincident", 34, 2, 35, 1),
    Sketcher.Constraint("Coincident", 35, 2, 32, 1),
    Sketcher.Constraint("Coincident", 36, 2, 37, 1),
    Sketcher.Constraint("Coincident", 37, 2, 38, 1),
    Sketcher.Constraint("Coincident", 38, 2, 39, 1),
    Sketcher.Constraint("Coincident", 39, 2, 36, 1),
    Sketcher.Constraint("Coincident", 40, 2, 41, 1),
    Sketcher.Constraint("Coincident", 41, 2, 42, 1),
    Sketcher.Constraint("Coincident", 42, 2, 43, 1),
    Sketcher.Constraint("Coincident", 43, 2, 40, 1),
    Sketcher.Constraint("Coincident", 44, 2, 45, 1),
    Sketcher.Constraint("Coincident", 45, 2, 46, 1),
    Sketcher.Constraint("Coincident", 46, 2, 47, 1),
    Sketcher.Constraint("Coincident", 47, 2, 44, 1),
    Sketcher.Constraint("Coincident", 48, 2, 49, 1),
    Sketcher.Constraint("Coincident", 49, 2, 50, 1),
    Sketcher.Constraint("Coincident", 50, 2, 51, 1),
    Sketcher.Constraint("Coincident", 51, 2, 48, 1),
    Sketcher.Constraint("Coincident", 52, 2, 53, 1),
    Sketcher.Constraint("Coincident", 53, 2, 54, 1),
    Sketcher.Constraint("Coincident", 54, 2, 55, 1),
    Sketcher.Constraint("Coincident", 55, 2, 52, 1),
    Sketcher.Constraint("Coincident", 56, 2, 57, 1),
    Sketcher.Constraint("Coincident", 57, 2, 58, 1),
    Sketcher.Constraint("Coincident", 58, 2, 59, 1),
    Sketcher.Constraint("Coincident", 59, 2, 56, 1),
    Sketcher.Constraint("Vertical", 0),
    Sketcher.Constraint("Horizontal", 1),
    Sketcher.Constraint("Vertical", 2),
    Sketcher.Constraint("Horizontal", 3),
    Sketcher.Constraint("Horizontal", 4),
    Sketcher.Constraint("Vertical", 5),
    Sketcher.Constraint("Horizontal", 6),
    Sketcher.Constraint("Vertical", 7),
    Sketcher.Constraint("Vertical", 8),
    Sketcher.Constraint("Horizontal", 9),
    Sketcher.Constraint("Vertical", 10),
    Sketcher.Constraint("Horizontal", 11),
    Sketcher.Constraint("Vertical", 12),
    Sketcher.Constraint("Horizontal", 13),
    Sketcher.Constraint("Vertical", 14),
    Sketcher.Constraint("Horizontal", 15),
    Sketcher.Constraint("Vertical", 16),
    Sketcher.Constraint("Horizontal", 17),
    Sketcher.Constraint("Vertical", 18),
    Sketcher.Constraint("Horizontal", 19),
    Sketcher.Constraint("Vertical", 20),
    Sketcher.Constraint("Horizontal", 21),
    Sketcher.Constraint("Vertical", 22),
    Sketcher.Constraint("Horizontal", 23),
    Sketcher.Constraint("Vertical", 24),
    Sketcher.Constraint("Horizontal", 25),
    Sketcher.Constraint("Vertical", 26),
    Sketcher.Constraint("Horizontal", 27),
    Sketcher.Constraint("Vertical", 28),
    Sketcher.Constraint("Horizontal", 29),
    Sketcher.Constraint("Vertical", 30),
    Sketcher.Constraint("Horizontal", 31),
    Sketcher.Constraint("Vertical", 32),
    Sketcher.Constraint("Horizontal", 33),
    Sketcher.Constraint("Vertical", 34),
    Sketcher.Constraint("Horizontal", 35),
    Sketcher.Constraint("Vertical", 36),
    Sketcher.Constraint("Horizontal", 37),
    Sketcher.Constraint("Vertical", 38),
    Sketcher.Constraint("Horizontal", 39),
    Sketcher.Constraint("Vertical", 40),
    Sketcher.Constraint("Horizontal", 41),
    Sketcher.Constraint("Vertical", 42),
    Sketcher.Constraint("Horizontal", 43),
    Sketcher.Constraint("Vertical", 44),
    Sketcher.Constraint("Horizontal", 45),
    Sketcher.Constraint("Vertical", 46),
    Sketcher.Constraint("Horizontal", 47),
    Sketcher.Constraint("Horizontal", 48),
    Sketcher.Constraint("Vertical", 49),
    Sketcher.Constraint("Horizontal", 50),
    Sketcher.Constraint("Vertical", 51),
    Sketcher.Constraint("Vertical", 52),
    Sketcher.Constraint("Horizontal", 53),
    Sketcher.Constraint("Vertical", 54),
    Sketcher.Constraint("Horizontal", 55),
    Sketcher.Constraint("Vertical", 56),
    Sketcher.Constraint("Horizontal", 57),
    Sketcher.Constraint("Vertical", 58),
    Sketcher.Constraint("Horizontal", 59),
    Sketcher.Constraint("Horizontal", 1, 2, 4, 2),
    Sketcher.Constraint("Horizontal", 7, 2, 8, 2),
    Sketcher.Constraint("Horizontal", 3, 2, 10, 2),
    Sketcher.Constraint("Horizontal", 15, 2, 18, 2),
    Sketcher.Constraint("Horizontal", 35, 2, 36, 2),
    Sketcher.Constraint("Horizontal", 33, 2, 38, 2),
    Sketcher.Constraint("Horizontal", 51, 2, 52, 2),
    Sketcher.Constraint("Horizontal", 53, 2, 56, 2),
    Sketcher.Constraint("Horizontal", 55, 2, 58, 2),
    Sketcher.Constraint("Vertical", 11, 2, 12, 2),
    Sketcher.Constraint("Vertical", 10, 2, 13, 2),
    Sketcher.Constraint("Vertical", 3, 2, 16, 2),
    Sketcher.Constraint("Vertical", 2, 2, 17, 2),
    Sketcher.Constraint("Vertical", 5, 2, 20, 2),
    Sketcher.Constraint("Vertical", 7, 2, 21, 2),
    Sketcher.Constraint("Vertical", 23, 2, 24, 2),
    Sketcher.Constraint("Vertical", 22, 2, 25, 2),
    Sketcher.Constraint("Vertical", 27, 2, 28, 2),
    Sketcher.Constraint("Vertical", 26, 2, 29, 2),
    Sketcher.Constraint("Vertical", 19, 2, 32, 2),
    Sketcher.Constraint("Vertical", 18, 2, 33, 2),
    Sketcher.Constraint("Vertical", 14, 2, 36, 2),
    Sketcher.Constraint("Vertical", 15, 2, 37, 2),
    Sketcher.Constraint("Vertical", 31, 2, 40, 2),
    Sketcher.Constraint("Vertical", 30, 2, 41, 2),
    Sketcher.Constraint("Vertical", 43, 2, 44, 2),
    Sketcher.Constraint("Vertical", 42, 2, 45, 2),
    Sketcher.Constraint("Vertical", 46, 2, 48, 2),
    Sketcher.Constraint("Vertical", 47, 2, 50, 2),
    Sketcher.Constraint("Vertical", 34, 2, 52, 2),
    Sketcher.Constraint("Vertical", 35, 2, 53, 2),
    Sketcher.Constraint("Vertical", 39, 2, 56, 2),
    Sketcher.Constraint("Vertical", 38, 2, 57, 2),
    Sketcher.Constraint("Equal", 3, 9),
    Sketcher.Constraint("Equal", 50, 0),
    Sketcher.Constraint("Equal", 10, 16),
    Sketcher.Constraint("Equal", 22, 24),
    Sketcher.Constraint("Equal", 26, 28),
    Sketcher.Constraint("Equal", 18, 32),
    Sketcher.Constraint("Equal", 30, 40),
    Sketcher.Constraint("Equal", 42, 44),
    Sketcher.Constraint("Equal", 38, 52),
    Sketcher.Constraint("DistanceX", 4, 2, 4, 1, Q("6 in")),
    Sketcher.Constraint("DistanceY", 20, 1, 20, 2, Q("4 in")),
    Sketcher.Constraint("DistanceY", 49, 2, 49, 1, Q("9 in")),
    Sketcher.Constraint("DistanceY", 5, 1, 5, 2, Q("6.5 in")),
    Sketcher.Constraint("DistanceY", 12, 2, 12, 1, Q("5.5 in")),
    Sketcher.Constraint("DistanceX", 0, 2, 4, 2, Q("18 in")),
    Sketcher.Constraint("DistanceX", 7, 2, 9, 2, Q("18 in")),
    Sketcher.Constraint("DistanceY", 11, 2, 12, 2, Q("10 in")),
    Sketcher.Constraint("DistanceY", 4, 2, 20, 2, Q("18 in")),
    Sketcher.Constraint("DistanceY", 20, 2, 24, 2, Q("14 in")),
    Sketcher.Constraint("DistanceY", 24, 2, 28, 2, Q("14 in")),
    Sketcher.Constraint("DistanceY", 28, 2, 32, 2, Q("12 in")),
    Sketcher.Constraint("DistanceY", 28, 2, 40, 2, Q("14 in")),
    Sketcher.Constraint("DistanceY", 40, 2, 44, 2, Q("14 in")),
    Sketcher.Constraint("DistanceY", 45, 2, 48, 2, Q("19 in")),
    Sketcher.Constraint("DistanceX", 1, 2, 1, 1, Q("9.75 in")),
    Sketcher.Constraint("DistanceY", -1, 1, 0, 2, Q("248.994672 mm")),
    Sketcher.Constraint("DistanceX", 0, 2, -1, 1, Q("776.089934 mm")),
])
pad2 = body.newObject("PartDesign::Pad", "Pad001")
pad2.Profile = sketch2
pad2.Length = Q("4 in")
pad2.Midplane = True

# Sketch on XY plane
sketch3 = body.newObject("Sketcher::SketchObject", "Sketch002")
sketch3.AttachmentSupport = (doc.getObject("XY_Plane"), [""])
sketch3.MapMode = "FlatFace"
sketch3.AttachmentOffset = App.Placement(Vector(0, 0, 1 * 25.4), App.Rotation())
sketch3.addGeometry([
    Part.LineSegment(Vector(-751, 249, 0), Vector(-751, 198, 0)),
    Part.LineSegment(Vector(-751, 198, 0), Vector(265, 198, 0)),
    Part.LineSegment(Vector(265, 198, 0), Vector(265, 249, 0)),
    Part.LineSegment(Vector(265, 249, 0), Vector(-751, 249, 0)),
], False)
sketch3.addConstraint([
    Sketcher.Constraint("Coincident", 0, 2, 1, 1),
    Sketcher.Constraint("Coincident", 1, 2, 2, 1),
    Sketcher.Constraint("Coincident", 2, 2, 3, 1),
    Sketcher.Constraint("Coincident", 3, 2, 0, 1),
    Sketcher.Constraint("Vertical", 0),
    Sketcher.Constraint("Horizontal", 1),
    Sketcher.Constraint("Vertical", 2),
    Sketcher.Constraint("Horizontal", 3),
    Sketcher.Constraint("DistanceX", 1, 1, 1, 2, Q("40 in")),
    Sketcher.Constraint("DistanceY", 0, 2, 0, 1, Q("2 in")),
    Sketcher.Constraint("DistanceY", -1, 1, 0, 2, Q("198.194672 mm")),
    Sketcher.Constraint("DistanceX", 0, 2, -1, 1, Q("750.689934 mm")),
])
pad3 = body.newObject("PartDesign::Pad", "Pad002")
pad3.Profile = sketch3
pad3.Length = Q("2 in")
pad3.Reversed = True
body2 = doc.addObject("PartDesign::Body", "Body001")

# Sketch on XY plane
sketch4 = body2.newObject("Sketcher::SketchObject", "Sketch003")
sketch4.AttachmentSupport = (doc.getObject("XY_Plane001"), [""])
sketch4.MapMode = "FlatFace"
sketch4.AttachmentOffset = App.Placement(Vector(0, 0, 1 * 25.4), App.Rotation())
sketch4.addGeometry([
    Part.LineSegment(Vector(-694, 2605, 0), Vector(-694, 205, 0)),
    Part.LineSegment(Vector(-694, 205, 0), Vector(208, 205, 0)),
    Part.LineSegment(Vector(208, 205, 0), Vector(208, 2605, 0)),
    Part.LineSegment(Vector(208, 2605, 0), Vector(-694, 2605, 0)),
], False)
sketch4.addConstraint([
    Sketcher.Constraint("Coincident", 0, 2, 1, 1),
    Sketcher.Constraint("Coincident", 1, 2, 2, 1),
    Sketcher.Constraint("Coincident", 2, 2, 3, 1),
    Sketcher.Constraint("Coincident", 3, 2, 0, 1),
    Sketcher.Constraint("Vertical", 0),
    Sketcher.Constraint("Horizontal", 1),
    Sketcher.Constraint("Vertical", 2),
    Sketcher.Constraint("Horizontal", 3),
    Sketcher.Constraint("DistanceX", 1, 1, 1, 2, Q("35.5 in")),
    Sketcher.Constraint("DistanceY", 0, 2, 0, 1, Q("94.5 in")),
    Sketcher.Constraint("DistanceY", -1, 1, 0, 2, Q("204.544672 mm")),
    Sketcher.Constraint("DistanceX", 0, 2, -1, 1, Q("693.539934 mm")),
])
pad4 = body2.newObject("PartDesign::Pad", "Pad003")
pad4.Profile = sketch4
pad4.Length = Q("55.12 in")

doc.recompute()
